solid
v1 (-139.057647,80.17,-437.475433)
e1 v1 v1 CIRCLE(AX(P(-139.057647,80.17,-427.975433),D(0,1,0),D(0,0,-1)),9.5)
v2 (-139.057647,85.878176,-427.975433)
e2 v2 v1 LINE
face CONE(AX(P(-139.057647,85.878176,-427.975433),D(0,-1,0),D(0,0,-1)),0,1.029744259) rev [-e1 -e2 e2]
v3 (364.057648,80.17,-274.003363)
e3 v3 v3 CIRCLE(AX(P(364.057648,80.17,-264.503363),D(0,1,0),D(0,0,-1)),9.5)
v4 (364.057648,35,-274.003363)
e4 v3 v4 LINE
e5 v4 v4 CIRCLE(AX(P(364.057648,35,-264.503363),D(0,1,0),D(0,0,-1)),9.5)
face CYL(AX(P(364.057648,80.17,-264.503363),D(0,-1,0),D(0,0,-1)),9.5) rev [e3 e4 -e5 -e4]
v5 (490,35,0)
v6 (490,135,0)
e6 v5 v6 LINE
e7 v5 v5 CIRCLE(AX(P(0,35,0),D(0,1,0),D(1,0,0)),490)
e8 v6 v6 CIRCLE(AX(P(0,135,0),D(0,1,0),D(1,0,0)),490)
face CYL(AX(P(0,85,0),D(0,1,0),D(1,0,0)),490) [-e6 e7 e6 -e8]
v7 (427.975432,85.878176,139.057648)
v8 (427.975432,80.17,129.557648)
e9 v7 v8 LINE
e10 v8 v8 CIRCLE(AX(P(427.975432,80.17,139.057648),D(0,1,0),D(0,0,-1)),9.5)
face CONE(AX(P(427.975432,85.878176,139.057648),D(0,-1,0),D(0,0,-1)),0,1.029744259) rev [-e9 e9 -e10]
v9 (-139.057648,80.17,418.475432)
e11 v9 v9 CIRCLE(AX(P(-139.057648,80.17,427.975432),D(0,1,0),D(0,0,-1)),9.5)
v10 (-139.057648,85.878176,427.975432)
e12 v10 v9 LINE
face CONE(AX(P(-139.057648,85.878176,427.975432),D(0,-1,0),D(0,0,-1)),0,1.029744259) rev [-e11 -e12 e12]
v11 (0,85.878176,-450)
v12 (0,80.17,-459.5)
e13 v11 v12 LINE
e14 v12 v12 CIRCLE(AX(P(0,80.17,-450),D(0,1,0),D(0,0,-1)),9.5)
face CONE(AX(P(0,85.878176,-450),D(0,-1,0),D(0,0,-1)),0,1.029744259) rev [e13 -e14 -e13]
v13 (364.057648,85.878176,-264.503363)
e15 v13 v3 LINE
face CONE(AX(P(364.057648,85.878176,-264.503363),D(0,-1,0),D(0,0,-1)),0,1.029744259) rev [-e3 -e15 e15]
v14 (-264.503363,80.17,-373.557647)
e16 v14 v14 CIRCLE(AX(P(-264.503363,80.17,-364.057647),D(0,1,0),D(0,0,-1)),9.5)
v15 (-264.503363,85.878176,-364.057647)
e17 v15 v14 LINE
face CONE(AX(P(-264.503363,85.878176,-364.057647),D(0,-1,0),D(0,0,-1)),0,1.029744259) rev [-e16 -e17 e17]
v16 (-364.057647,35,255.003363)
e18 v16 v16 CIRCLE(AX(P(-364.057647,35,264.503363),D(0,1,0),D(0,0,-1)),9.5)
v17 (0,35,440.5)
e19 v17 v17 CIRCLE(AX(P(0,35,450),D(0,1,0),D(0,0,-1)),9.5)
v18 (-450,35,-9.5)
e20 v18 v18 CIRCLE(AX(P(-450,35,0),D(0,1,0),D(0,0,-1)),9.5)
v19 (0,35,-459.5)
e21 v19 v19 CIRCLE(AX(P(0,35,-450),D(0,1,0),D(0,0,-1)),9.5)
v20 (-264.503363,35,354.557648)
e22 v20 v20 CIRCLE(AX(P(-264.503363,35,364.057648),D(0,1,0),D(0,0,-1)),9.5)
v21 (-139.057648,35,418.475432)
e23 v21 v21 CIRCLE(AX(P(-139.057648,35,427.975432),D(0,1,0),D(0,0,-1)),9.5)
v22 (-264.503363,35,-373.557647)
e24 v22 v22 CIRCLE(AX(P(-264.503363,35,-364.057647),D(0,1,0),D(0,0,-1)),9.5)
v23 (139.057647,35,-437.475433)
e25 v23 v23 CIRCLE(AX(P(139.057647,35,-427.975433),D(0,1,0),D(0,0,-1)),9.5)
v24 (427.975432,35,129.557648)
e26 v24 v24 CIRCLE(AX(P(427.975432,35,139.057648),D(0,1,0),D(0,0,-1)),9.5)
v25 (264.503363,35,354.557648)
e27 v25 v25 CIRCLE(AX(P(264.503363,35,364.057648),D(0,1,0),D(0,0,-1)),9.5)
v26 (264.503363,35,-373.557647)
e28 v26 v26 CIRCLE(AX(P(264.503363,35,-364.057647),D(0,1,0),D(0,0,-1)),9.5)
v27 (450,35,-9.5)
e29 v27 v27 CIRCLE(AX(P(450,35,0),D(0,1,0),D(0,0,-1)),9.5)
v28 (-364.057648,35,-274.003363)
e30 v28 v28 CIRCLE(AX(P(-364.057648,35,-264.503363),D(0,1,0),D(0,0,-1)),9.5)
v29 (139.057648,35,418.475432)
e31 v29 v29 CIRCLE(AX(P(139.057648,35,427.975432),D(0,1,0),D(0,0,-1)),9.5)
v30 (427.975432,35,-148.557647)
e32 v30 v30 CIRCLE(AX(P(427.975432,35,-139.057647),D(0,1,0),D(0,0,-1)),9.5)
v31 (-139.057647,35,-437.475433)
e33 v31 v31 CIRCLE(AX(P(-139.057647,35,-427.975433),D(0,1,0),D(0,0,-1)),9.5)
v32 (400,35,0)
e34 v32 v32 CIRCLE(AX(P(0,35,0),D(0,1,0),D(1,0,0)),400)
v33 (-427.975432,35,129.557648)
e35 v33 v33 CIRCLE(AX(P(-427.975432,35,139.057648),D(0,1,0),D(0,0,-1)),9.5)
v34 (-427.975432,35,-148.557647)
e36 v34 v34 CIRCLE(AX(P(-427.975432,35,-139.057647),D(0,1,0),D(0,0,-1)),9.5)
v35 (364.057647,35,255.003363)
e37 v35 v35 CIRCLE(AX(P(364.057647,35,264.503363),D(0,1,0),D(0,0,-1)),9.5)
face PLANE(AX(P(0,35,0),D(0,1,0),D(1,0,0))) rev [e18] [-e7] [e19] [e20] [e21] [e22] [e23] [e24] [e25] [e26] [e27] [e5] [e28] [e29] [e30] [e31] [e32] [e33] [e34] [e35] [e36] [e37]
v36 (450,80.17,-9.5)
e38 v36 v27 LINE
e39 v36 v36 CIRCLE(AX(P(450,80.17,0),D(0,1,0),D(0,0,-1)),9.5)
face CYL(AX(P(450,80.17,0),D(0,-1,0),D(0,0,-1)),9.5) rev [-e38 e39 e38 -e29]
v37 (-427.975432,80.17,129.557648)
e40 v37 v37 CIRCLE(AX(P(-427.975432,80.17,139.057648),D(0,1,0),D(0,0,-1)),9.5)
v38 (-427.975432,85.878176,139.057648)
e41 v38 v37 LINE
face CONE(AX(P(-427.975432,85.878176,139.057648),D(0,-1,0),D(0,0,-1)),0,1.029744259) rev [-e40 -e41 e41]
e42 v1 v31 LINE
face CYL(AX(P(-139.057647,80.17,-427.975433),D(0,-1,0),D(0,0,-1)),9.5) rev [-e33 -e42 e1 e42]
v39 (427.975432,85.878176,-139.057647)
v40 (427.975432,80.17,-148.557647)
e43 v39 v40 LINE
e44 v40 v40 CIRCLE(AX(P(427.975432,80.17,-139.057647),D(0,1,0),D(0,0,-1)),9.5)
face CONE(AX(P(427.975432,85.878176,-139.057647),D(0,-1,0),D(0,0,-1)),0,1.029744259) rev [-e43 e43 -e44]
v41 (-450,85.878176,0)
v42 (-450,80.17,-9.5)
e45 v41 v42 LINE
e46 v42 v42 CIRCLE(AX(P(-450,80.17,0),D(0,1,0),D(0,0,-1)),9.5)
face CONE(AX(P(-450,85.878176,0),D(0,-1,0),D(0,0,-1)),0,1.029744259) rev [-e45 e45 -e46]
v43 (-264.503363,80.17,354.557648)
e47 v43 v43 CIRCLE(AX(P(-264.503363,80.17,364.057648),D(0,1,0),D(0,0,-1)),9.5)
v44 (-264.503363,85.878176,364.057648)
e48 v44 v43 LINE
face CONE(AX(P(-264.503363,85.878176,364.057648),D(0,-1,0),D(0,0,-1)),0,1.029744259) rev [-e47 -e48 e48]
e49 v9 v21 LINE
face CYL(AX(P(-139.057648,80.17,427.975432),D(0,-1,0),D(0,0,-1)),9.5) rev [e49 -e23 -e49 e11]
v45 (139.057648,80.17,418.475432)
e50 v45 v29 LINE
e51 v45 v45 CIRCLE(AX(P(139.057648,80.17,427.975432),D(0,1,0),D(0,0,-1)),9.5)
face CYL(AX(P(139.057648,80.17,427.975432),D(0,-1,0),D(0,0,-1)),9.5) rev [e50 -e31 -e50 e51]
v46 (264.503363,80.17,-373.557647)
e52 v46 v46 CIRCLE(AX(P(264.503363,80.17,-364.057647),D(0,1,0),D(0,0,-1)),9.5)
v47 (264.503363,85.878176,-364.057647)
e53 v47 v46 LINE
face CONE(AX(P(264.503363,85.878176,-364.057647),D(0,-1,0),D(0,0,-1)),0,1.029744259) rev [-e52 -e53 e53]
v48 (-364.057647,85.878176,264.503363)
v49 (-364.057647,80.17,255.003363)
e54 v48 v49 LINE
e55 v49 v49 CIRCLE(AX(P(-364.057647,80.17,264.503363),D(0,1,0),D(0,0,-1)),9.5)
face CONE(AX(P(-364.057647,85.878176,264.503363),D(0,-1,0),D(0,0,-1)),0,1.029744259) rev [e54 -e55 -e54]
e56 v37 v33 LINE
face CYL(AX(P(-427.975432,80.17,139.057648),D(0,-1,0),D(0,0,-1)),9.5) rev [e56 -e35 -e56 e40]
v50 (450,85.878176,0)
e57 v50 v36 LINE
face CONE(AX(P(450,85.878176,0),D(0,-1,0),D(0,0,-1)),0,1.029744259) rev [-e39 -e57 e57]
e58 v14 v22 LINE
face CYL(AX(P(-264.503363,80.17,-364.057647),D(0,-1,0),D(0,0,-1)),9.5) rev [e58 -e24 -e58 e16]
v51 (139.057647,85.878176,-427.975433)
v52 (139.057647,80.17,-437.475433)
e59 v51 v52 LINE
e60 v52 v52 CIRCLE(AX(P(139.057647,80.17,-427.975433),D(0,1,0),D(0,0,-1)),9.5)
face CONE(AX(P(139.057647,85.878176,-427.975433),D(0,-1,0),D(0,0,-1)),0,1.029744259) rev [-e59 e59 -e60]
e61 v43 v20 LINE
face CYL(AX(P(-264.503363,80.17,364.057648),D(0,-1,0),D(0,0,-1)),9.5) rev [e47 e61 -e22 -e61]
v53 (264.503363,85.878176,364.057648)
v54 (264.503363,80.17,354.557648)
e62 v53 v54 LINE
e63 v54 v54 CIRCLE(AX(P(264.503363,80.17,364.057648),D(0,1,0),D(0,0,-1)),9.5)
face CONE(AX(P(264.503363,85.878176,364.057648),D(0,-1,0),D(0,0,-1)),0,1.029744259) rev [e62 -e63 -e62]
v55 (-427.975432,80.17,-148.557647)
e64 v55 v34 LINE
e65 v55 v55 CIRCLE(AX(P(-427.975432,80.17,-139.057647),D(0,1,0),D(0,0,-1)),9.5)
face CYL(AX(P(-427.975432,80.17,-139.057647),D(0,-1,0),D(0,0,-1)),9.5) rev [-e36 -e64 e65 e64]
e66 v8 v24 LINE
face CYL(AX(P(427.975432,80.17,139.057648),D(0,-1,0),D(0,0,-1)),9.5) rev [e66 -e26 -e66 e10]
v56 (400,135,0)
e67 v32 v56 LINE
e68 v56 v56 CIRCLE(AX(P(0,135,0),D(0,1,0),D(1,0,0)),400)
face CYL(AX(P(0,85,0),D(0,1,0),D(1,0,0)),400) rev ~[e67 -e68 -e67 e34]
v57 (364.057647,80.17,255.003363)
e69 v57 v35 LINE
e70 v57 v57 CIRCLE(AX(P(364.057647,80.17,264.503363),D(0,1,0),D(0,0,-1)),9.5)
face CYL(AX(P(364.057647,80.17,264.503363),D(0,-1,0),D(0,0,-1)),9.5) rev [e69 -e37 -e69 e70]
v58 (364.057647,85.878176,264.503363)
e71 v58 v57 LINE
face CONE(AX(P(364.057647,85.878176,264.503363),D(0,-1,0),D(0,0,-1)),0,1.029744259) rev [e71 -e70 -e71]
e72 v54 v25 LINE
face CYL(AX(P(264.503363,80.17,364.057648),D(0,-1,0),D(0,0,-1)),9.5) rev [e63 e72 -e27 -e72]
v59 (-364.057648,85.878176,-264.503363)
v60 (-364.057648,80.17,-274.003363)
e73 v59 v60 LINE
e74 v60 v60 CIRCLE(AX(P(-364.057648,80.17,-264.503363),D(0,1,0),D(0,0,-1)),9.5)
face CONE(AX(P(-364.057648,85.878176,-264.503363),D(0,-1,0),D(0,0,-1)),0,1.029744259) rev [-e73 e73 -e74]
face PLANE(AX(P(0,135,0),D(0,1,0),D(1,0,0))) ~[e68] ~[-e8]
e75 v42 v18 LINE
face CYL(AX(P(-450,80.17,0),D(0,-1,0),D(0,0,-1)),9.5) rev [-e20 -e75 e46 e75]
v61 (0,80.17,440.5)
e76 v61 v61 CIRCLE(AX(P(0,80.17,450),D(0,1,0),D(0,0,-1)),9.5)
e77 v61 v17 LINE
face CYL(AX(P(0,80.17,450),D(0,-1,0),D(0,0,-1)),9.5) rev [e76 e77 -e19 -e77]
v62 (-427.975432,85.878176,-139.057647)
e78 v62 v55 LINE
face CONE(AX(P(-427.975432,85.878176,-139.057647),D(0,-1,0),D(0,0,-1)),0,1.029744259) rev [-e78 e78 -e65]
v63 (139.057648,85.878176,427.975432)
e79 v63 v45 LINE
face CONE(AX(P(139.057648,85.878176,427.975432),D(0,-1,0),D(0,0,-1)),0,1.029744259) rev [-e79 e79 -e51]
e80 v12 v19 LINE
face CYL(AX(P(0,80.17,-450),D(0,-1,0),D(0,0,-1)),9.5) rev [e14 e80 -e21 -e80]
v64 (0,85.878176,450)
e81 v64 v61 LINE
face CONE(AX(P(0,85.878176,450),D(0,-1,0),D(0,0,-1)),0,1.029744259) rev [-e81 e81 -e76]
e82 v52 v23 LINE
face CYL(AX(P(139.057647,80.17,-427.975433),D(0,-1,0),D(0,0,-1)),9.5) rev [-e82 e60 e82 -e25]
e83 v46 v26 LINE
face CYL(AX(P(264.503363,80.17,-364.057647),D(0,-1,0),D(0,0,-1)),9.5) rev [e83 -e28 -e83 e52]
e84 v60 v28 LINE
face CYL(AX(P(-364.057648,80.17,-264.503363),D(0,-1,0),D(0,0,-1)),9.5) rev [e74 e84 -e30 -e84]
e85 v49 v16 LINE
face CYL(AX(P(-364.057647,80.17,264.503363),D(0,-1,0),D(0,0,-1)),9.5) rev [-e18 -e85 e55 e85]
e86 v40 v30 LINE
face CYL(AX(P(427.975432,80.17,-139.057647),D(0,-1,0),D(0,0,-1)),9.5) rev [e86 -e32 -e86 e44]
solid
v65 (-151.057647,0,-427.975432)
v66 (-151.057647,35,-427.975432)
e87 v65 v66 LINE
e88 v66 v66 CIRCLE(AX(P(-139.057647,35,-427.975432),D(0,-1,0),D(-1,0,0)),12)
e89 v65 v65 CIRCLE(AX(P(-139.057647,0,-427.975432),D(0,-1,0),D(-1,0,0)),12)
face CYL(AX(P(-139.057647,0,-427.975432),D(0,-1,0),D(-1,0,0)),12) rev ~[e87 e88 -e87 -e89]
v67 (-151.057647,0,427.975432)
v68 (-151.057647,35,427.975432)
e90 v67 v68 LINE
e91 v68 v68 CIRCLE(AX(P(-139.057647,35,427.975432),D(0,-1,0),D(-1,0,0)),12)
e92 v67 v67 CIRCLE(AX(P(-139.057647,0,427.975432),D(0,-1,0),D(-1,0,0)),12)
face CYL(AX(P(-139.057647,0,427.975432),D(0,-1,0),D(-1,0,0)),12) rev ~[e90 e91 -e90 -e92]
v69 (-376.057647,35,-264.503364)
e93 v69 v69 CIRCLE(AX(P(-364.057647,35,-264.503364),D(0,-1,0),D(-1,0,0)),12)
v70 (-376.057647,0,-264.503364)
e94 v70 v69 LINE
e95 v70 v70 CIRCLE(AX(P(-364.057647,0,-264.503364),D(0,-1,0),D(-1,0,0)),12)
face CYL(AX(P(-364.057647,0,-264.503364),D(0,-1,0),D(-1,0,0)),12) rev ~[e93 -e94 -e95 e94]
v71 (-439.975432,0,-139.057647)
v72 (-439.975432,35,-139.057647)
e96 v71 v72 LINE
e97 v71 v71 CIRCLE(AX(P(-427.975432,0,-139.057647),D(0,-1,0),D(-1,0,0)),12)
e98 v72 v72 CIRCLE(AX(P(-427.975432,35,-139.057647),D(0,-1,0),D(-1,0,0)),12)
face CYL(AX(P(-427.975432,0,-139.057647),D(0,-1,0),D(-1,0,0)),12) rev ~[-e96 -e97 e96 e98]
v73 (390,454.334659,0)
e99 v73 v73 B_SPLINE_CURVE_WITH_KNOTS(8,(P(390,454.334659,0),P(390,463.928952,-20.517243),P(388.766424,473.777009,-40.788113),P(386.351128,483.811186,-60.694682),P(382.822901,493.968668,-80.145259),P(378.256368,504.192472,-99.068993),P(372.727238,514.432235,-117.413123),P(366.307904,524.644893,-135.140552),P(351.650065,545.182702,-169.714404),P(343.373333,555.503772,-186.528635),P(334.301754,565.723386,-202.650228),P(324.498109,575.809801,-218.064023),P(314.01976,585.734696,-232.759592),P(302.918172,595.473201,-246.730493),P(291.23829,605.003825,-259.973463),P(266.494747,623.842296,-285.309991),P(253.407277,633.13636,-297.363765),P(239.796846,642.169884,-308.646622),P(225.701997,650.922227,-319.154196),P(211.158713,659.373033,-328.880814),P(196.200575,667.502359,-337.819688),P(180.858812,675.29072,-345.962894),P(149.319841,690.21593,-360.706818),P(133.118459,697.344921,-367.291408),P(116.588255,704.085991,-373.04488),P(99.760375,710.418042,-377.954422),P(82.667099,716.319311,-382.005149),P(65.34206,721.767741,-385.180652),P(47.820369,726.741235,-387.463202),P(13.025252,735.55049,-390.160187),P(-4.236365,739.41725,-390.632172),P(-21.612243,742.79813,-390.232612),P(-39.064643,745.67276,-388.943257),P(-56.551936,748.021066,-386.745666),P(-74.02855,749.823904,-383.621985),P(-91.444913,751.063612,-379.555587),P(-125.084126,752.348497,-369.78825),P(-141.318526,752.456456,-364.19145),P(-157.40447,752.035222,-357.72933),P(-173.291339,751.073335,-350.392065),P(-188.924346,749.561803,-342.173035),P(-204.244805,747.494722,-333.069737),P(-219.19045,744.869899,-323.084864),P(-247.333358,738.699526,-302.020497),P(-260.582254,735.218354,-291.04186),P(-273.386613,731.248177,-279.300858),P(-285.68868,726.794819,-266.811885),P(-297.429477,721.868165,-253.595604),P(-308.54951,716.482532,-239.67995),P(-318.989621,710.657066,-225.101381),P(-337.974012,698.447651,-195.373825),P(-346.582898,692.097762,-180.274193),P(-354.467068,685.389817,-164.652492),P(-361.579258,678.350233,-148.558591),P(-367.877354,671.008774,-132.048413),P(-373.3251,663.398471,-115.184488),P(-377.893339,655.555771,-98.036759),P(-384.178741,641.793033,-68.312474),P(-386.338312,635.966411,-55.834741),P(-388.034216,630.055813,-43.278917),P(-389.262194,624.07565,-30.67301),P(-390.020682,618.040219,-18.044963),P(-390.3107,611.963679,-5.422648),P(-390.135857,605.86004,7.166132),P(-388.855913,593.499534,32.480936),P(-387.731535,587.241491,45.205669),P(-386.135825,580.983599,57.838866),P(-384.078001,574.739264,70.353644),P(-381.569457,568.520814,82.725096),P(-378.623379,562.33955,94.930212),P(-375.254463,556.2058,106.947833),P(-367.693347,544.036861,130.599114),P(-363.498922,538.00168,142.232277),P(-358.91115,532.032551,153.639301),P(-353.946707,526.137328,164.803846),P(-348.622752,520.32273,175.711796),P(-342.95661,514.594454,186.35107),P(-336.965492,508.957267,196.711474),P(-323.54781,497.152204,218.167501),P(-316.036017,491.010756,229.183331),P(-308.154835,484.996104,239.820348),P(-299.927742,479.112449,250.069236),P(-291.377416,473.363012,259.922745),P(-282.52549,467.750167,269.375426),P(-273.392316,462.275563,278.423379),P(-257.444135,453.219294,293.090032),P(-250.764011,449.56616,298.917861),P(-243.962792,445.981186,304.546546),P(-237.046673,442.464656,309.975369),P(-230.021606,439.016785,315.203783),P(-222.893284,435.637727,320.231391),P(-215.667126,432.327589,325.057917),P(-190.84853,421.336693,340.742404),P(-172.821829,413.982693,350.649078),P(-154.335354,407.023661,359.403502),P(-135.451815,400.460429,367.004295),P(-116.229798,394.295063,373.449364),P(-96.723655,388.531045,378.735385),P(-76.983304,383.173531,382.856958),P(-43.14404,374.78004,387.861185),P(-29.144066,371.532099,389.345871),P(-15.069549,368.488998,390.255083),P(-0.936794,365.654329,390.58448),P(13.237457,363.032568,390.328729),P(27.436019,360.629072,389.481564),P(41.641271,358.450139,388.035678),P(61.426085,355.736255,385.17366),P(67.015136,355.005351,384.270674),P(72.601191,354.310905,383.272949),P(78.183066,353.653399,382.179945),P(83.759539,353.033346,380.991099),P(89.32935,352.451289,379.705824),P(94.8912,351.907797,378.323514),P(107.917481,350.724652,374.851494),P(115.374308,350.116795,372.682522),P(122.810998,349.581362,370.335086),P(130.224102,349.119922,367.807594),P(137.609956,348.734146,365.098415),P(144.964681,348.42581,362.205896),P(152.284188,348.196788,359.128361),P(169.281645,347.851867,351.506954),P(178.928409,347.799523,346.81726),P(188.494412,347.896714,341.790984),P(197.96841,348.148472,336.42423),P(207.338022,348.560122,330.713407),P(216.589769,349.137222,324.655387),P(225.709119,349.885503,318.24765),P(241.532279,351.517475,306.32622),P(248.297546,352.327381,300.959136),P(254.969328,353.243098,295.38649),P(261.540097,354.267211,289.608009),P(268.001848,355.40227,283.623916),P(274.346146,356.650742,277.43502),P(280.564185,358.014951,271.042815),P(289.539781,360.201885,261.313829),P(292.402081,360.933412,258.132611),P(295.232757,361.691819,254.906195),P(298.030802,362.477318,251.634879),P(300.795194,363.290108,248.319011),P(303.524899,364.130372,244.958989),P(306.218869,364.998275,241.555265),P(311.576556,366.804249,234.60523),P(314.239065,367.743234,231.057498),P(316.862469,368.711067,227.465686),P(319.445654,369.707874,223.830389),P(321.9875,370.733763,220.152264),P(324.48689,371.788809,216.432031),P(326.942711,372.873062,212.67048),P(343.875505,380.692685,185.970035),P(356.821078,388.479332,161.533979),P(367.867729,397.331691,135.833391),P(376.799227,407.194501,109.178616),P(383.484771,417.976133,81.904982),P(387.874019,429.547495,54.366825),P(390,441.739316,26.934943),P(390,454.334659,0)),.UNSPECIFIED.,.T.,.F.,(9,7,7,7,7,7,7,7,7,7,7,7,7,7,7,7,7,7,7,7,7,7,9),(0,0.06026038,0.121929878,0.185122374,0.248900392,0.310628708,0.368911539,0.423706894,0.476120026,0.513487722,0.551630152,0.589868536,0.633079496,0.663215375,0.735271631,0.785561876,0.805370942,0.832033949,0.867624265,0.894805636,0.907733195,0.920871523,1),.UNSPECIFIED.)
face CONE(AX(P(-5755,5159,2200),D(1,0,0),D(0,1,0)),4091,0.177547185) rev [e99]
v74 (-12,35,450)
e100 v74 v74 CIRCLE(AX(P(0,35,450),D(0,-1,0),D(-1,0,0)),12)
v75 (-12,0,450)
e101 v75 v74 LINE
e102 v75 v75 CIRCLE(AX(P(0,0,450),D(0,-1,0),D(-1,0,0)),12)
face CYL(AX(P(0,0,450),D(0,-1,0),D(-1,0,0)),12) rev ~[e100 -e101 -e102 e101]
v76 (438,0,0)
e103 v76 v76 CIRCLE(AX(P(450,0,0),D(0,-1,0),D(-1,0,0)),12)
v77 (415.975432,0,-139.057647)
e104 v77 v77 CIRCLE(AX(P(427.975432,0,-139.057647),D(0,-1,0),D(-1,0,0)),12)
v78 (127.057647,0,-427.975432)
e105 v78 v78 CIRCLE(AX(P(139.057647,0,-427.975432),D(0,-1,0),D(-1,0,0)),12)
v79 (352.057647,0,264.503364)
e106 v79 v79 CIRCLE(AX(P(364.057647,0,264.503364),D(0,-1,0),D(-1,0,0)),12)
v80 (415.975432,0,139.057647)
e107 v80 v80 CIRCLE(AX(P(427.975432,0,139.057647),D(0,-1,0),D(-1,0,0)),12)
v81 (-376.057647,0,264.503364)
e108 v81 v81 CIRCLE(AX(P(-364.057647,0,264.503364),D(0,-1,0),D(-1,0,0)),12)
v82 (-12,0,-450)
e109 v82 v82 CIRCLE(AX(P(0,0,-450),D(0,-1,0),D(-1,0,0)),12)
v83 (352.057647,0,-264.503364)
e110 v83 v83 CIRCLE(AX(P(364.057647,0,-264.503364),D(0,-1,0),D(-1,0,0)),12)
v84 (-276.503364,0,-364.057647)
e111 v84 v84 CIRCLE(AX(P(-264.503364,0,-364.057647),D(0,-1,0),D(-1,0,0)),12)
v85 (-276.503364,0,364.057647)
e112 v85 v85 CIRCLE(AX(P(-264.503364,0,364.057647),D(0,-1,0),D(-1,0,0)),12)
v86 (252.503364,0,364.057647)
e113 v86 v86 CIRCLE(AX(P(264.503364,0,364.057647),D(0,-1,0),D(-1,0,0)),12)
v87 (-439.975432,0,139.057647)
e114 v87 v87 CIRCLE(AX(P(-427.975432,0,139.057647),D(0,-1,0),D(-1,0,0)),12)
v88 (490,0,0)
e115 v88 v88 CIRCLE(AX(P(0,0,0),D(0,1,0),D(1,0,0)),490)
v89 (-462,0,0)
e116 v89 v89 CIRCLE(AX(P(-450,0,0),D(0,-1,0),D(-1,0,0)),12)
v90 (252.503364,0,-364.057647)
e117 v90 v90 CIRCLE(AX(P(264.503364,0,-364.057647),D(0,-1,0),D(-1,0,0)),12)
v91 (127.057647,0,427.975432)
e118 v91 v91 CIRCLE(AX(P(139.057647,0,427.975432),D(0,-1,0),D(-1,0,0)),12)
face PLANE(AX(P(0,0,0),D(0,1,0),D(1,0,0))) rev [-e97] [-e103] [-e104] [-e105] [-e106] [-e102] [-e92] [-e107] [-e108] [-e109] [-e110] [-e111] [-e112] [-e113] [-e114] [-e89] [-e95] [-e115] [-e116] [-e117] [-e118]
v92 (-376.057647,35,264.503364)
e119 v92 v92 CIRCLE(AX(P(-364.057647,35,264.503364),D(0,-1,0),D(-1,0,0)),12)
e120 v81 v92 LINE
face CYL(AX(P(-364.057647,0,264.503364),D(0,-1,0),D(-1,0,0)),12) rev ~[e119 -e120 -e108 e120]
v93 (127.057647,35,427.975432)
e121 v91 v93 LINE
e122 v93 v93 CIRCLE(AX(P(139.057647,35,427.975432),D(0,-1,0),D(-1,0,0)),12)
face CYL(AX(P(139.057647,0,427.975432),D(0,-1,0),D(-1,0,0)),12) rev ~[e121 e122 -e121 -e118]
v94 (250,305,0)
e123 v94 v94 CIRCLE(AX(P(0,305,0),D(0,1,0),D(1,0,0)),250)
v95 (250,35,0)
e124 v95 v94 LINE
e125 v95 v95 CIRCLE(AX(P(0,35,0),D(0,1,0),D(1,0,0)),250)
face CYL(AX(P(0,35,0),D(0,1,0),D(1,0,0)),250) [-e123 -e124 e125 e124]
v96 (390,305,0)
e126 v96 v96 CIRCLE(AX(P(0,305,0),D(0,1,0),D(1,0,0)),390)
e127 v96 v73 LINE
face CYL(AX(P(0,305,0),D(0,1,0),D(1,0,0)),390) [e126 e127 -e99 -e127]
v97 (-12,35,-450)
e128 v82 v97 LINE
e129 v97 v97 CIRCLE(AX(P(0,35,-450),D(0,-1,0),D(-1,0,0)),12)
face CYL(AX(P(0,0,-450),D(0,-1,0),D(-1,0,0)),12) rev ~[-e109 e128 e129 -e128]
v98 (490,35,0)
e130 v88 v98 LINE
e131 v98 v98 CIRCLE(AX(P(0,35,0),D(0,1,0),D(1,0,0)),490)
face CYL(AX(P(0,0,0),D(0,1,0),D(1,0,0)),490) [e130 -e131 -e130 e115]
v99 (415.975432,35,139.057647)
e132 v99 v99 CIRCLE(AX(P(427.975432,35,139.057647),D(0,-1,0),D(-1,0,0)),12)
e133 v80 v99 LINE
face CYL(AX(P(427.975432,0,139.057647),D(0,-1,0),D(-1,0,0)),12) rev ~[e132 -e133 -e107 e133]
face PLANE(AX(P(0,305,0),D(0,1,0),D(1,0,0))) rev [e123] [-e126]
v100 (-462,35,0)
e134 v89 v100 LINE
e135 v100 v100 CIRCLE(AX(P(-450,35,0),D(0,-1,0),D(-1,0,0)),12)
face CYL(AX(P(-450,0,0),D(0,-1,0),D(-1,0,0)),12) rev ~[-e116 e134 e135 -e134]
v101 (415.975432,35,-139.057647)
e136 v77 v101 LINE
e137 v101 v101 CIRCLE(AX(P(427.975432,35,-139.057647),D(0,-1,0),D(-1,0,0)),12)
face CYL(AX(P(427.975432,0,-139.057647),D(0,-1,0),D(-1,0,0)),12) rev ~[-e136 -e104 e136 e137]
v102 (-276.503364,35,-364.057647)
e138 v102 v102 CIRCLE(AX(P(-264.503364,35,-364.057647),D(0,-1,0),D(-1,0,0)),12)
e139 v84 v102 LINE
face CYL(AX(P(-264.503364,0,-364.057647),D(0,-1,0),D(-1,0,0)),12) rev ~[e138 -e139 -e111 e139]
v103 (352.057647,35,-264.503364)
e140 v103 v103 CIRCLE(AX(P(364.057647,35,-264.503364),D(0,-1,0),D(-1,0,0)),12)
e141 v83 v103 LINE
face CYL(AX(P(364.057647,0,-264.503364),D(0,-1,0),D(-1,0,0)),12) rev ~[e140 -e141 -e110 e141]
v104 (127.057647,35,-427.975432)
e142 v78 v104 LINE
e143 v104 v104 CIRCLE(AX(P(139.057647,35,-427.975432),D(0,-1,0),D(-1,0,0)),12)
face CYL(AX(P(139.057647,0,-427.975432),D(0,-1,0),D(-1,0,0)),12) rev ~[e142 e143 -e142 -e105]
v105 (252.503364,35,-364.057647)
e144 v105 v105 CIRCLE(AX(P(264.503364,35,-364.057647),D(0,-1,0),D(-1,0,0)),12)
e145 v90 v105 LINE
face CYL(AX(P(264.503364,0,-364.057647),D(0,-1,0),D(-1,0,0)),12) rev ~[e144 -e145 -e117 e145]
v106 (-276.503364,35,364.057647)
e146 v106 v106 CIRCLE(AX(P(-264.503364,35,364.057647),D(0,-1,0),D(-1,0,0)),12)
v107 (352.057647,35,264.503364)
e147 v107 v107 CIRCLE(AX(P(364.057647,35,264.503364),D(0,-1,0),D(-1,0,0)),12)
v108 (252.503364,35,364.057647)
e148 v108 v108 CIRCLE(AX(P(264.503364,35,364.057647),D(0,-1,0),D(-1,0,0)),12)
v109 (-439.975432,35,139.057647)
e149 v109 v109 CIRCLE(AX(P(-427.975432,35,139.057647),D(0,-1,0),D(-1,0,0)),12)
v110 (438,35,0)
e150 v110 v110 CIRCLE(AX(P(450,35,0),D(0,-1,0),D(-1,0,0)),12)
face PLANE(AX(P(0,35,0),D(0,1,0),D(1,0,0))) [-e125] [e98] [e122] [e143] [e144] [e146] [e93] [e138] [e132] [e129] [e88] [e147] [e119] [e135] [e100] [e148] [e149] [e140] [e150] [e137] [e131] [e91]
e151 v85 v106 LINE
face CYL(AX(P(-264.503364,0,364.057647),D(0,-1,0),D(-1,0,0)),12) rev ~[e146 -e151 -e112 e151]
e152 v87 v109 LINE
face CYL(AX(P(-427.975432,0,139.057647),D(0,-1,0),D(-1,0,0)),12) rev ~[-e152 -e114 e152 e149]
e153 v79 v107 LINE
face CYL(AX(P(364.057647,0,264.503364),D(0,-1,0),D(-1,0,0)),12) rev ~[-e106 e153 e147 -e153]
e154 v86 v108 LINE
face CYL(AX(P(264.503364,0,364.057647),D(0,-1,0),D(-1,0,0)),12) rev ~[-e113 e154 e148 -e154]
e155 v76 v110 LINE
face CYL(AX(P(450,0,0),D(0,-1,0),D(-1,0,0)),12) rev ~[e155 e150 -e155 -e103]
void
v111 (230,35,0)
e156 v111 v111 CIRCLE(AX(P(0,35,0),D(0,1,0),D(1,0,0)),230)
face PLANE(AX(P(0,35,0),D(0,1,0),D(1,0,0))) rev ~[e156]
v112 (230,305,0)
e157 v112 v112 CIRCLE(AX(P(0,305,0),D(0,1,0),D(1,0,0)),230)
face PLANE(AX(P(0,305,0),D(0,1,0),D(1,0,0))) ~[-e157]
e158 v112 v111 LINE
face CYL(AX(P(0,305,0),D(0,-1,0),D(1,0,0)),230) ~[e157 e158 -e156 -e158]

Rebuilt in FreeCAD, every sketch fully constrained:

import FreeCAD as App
import Part
import Sketcher
Q = App.Units.Quantity


def add_polygon(sketch, points):
    """Adds a closed chain of lines whose ends are joined by coincident constraints."""
    first, n = sketch.GeometryCount, len(points)
    for a, b in zip(points, points[1:] + points[:1]):
        sketch.addGeometry(Part.LineSegment(App.Vector(*a, 0), App.Vector(*b, 0)), False)
    for i in range(n):
        sketch.addConstraint(Sketcher.Constraint("Coincident", first + i, 2, first + (i + 1) % n, 1))

doc = App.newDocument("Part")
body = doc.addObject("PartDesign::Body", "Body")

sketch1 = body.newObject("Sketcher::SketchObject", "Sketch")
sketch1.AttachmentSupport = (doc.getObject("XY_Plane"), [""])
sketch1.MapMode = "FlatFace"
add_polygon(sketch1, [(0, 0), (490, 0), (490, 35), (250, 35), (250, 305), (390, 305), (390, 775), (0, 775), (0, 305), (230, 305), (230, 35), (0, 35)])
sketch1.addConstraint([
    Sketcher.Constraint("Horizontal", 0),
    Sketcher.Constraint("Vertical", 1),
    Sketcher.Constraint("Horizontal", 2),
    Sketcher.Constraint("Vertical", 3),
    Sketcher.Constraint("Horizontal", 4),
    Sketcher.Constraint("Vertical", 5),
    Sketcher.Constraint("Horizontal", 6),
    Sketcher.Constraint("Vertical", 7),
    Sketcher.Constraint("Horizontal", 8),
    Sketcher.Constraint("Vertical", 9),
    Sketcher.Constraint("Horizontal", 10),
    Sketcher.Constraint("Vertical", 11),
    Sketcher.Constraint("Coincident", 11, 2, -1, 1),
    Sketcher.Constraint("PointOnObject", 6, 2, -2),
    Sketcher.Constraint("Horizontal", 4, 2, 7, 2),
    Sketcher.Constraint("Horizontal", 2, 2, 9, 2),
    Sketcher.Constraint("DistanceX", 0, 1, 0, 2, 490.0),
    Sketcher.Constraint("DistanceX", 2, 2, 2, 1, 240.0),
    Sketcher.Constraint("DistanceX", 4, 1, 4, 2, 140.0),
    Sketcher.Constraint("DistanceX", 8, 1, 8, 2, 230.0),
    Sketcher.Constraint("DistanceY", 1, 1, 1, 2, 35.0),
    Sketcher.Constraint("DistanceY", 3, 1, 3, 2, 270.0),
    Sketcher.Constraint("DistanceY", 5, 1, 5, 2, 470.0),
])
revolution = body.newObject("PartDesign::Revolution", "Revolution")
revolution.Profile = sketch1
revolution.ReferenceAxis = (sketch1, ["V_Axis"])
revolution.Angle = 360

sketch2 = body.newObject("Sketcher::SketchObject", "Sketch001")
sketch2.AttachmentSupport = (doc.getObject("XZ_Plane"), [""])
sketch2.MapMode = "FlatFace"
sketch2.addGeometry([
    Part.Circle(App.Vector(0, 450, 0), App.Vector(0, 0, 1), 12),
    Part.Circle(App.Vector(139, 428, 0), App.Vector(0, 0, 1), 12),
    Part.Circle(App.Vector(265, 364, 0), App.Vector(0, 0, 1), 12),
    Part.Circle(App.Vector(364, 265, 0), App.Vector(0, 0, 1), 12),
    Part.Circle(App.Vector(428, 139, 0), App.Vector(0, 0, 1), 12),
    Part.Circle(App.Vector(450, 0, 0), App.Vector(0, 0, 1), 12),
    Part.Circle(App.Vector(428, -139, 0), App.Vector(0, 0, 1), 12),
    Part.Circle(App.Vector(364, -265, 0), App.Vector(0, 0, 1), 12),
    Part.Circle(App.Vector(265, -364, 0), App.Vector(0, 0, 1), 12),
    Part.Circle(App.Vector(139, -428, 0), App.Vector(0, 0, 1), 12),
    Part.Circle(App.Vector(0, -450, 0), App.Vector(0, 0, 1), 12),
    Part.Circle(App.Vector(-139, -428, 0), App.Vector(0, 0, 1), 12),
    Part.Circle(App.Vector(-265, -364, 0), App.Vector(0, 0, 1), 12),
    Part.Circle(App.Vector(-364, -265, 0), App.Vector(0, 0, 1), 12),
    Part.Circle(App.Vector(-428, -139, 0), App.Vector(0, 0, 1), 12),
    Part.Circle(App.Vector(-450, 0, 0), App.Vector(0, 0, 1), 12),
    Part.Circle(App.Vector(-428, 139, 0), App.Vector(0, 0, 1), 12),
    Part.Circle(App.Vector(-364, 265, 0), App.Vector(0, 0, 1), 12),
    Part.Circle(App.Vector(-265, 364, 0), App.Vector(0, 0, 1), 12),
    Part.Circle(App.Vector(-139, 428, 0), App.Vector(0, 0, 1), 12),
], False)
sketch2.addConstraint([
    Sketcher.Constraint("Equal", 0, 1),
    Sketcher.Constraint("Equal", 1, 2),
    Sketcher.Constraint("Equal", 2, 3),
    Sketcher.Constraint("Equal", 3, 4),
    Sketcher.Constraint("Equal", 4, 5),
    Sketcher.Constraint("Equal", 5, 6),
    Sketcher.Constraint("Equal", 6, 7),
    Sketcher.Constraint("Equal", 7, 8),
    Sketcher.Constraint("Equal", 8, 9),
    Sketcher.Constraint("Equal", 9, 10),
    Sketcher.Constraint("Equal", 10, 11),
    Sketcher.Constraint("Equal", 11, 12),
    Sketcher.Constraint("Equal", 12, 13),
    Sketcher.Constraint("Equal", 13, 14),
    Sketcher.Constraint("Equal", 14, 15),
    Sketcher.Constraint("Equal", 15, 16),
    Sketcher.Constraint("Equal", 16, 17),
    Sketcher.Constraint("Equal", 17, 18),
    Sketcher.Constraint("Equal", 18, 19),
    Sketcher.Constraint("Symmetric", 0, 3, 10, 3, -1, 1),
    Sketcher.Constraint("Symmetric", 1, 3, 11, 3, -1, 1),
    Sketcher.Constraint("Symmetric", 2, 3, 12, 3, -1, 1),
    Sketcher.Constraint("Symmetric", 3, 3, 13, 3, -1, 1),
    Sketcher.Constraint("Symmetric", 4, 3, 14, 3, -1, 1),
    Sketcher.Constraint("Symmetric", 5, 3, 15, 3, -1, 1),
    Sketcher.Constraint("Symmetric", 6, 3, 16, 3, -1, 1),
    Sketcher.Constraint("Symmetric", 7, 3, 17, 3, -1, 1),
    Sketcher.Constraint("Symmetric", 8, 3, 18, 3, -1, 1),
    Sketcher.Constraint("Symmetric", 9, 3, 19, 3, -1, 1),
    Sketcher.Constraint("Symmetric", 9, 3, 11, 3, -2),
    Sketcher.Constraint("Symmetric", 8, 3, 12, 3, -2),
    Sketcher.Constraint("Symmetric", 7, 3, 13, 3, -2),
    Sketcher.Constraint("Symmetric", 6, 3, 14, 3, -2),
    Sketcher.Constraint("PointOnObject", 0, 3, -2),
    Sketcher.Constraint("PointOnObject", 5, 3, -1),
    Sketcher.Constraint("Diameter", 0, 24.0),
    Sketcher.Constraint("DistanceY", -1, 1, 0, 3, 450.0),
    Sketcher.Constraint("DistanceX", -1, 1, 5, 3, 450.0),
    Sketcher.Constraint("DistanceX", 1, 3, 3, 3, 225.0),
    Sketcher.Constraint("DistanceY", 4, 3, 2, 3, 225.0),
    Sketcher.Constraint("DistanceY", 3, 3, 1, 3, 163.472069),
    Sketcher.Constraint("DistanceX", 2, 3, 4, 3, 163.472069),
    Sketcher.Constraint("DistanceY", 6, 3, 3, 3, 403.561011),
    Sketcher.Constraint("DistanceX", 11, 3, 8, 3, 403.561011),
    Sketcher.Constraint("DistanceX", -1, 1, 1, 3, 139.057647),
    Sketcher.Constraint("DistanceY", -1, 1, 1, 3, 427.975432),
])
pocket1 = body.newObject("PartDesign::Pocket", "Pocket")
pocket1.Profile = sketch2
pocket1.Type = "ThroughAll"

sketch3 = body.newObject("Sketcher::SketchObject", "Sketch002")
sketch3.AttachmentSupport = (doc.getObject("XY_Plane"), [""])
sketch3.MapMode = "FlatFace"
sketch3.AttachmentOffset = App.Placement(App.Vector(0, 0, 2200), App.Rotation())
add_polygon(sketch3, [(1345, 10524), (-5755, 9250), (-5755, 5159), (1345, 5159)])
sketch3.addGeometry(Part.LineSegment(App.Vector(1345, 5159, 0), App.Vector(-5755, 5159, 0)), True)
sketch3.addConstraint([
    Sketcher.Constraint("Vertical", 1),
    Sketcher.Constraint("Horizontal", 2),
    Sketcher.Constraint("Vertical", 3),
    Sketcher.Constraint("Horizontal", 4),
    Sketcher.Constraint("Coincident", 4, 1, 2, 2),
    Sketcher.Constraint("Vertical", 0, 2, 4, 2),
    Sketcher.Constraint("DistanceX", 2, 1, 2, 2, 7100.0),
    Sketcher.Constraint("DistanceY", 1, 2, 1, 1, 4091.0),
    Sketcher.Constraint("DistanceY", 3, 1, 3, 2, 5365.0),
    Sketcher.Constraint("DistanceX", 0, 2, -1, 1, 5755.0),
    Sketcher.Constraint("DistanceY", -1, 1, 0, 2, 9250.0),
])
groove = body.newObject("PartDesign::Groove", "Groove")
groove.Profile = sketch3
groove.ReferenceAxis = (sketch3, ["Axis0"])
groove.Angle = 360
body2 = doc.addObject("PartDesign::Body", "Body001")

sketch4 = body2.newObject("Sketcher::SketchObject", "Sketch003")
sketch4.AttachmentSupport = (doc.getObject("XY_Plane001"), [""])
sketch4.MapMode = "FlatFace"
add_polygon(sketch4, [(400, 135), (400, 35), (490, 35), (490, 135)])
sketch4.addConstraint([
    Sketcher.Constraint("Vertical", 0),
    Sketcher.Constraint("Horizontal", 1),
    Sketcher.Constraint("Vertical", 2),
    Sketcher.Constraint("Horizontal", 3),
    Sketcher.Constraint("DistanceX", 1, 1, 1, 2, 90.0),
    Sketcher.Constraint("DistanceY", 0, 2, 0, 1, 100.0),
    Sketcher.Constraint("DistanceX", -1, 1, 0, 2, 400.0),
    Sketcher.Constraint("DistanceY", -1, 1, 0, 2, 35.0),
])
revolution2 = body2.newObject("PartDesign::Revolution", "Revolution001")
revolution2.Profile = sketch4
revolution2.ReferenceAxis = (sketch4, ["V_Axis"])
revolution2.Angle = 360

sketch5 = body2.newObject("Sketcher::SketchObject", "Sketch004")
sketch5.AttachmentSupport = (doc.getObject("YZ_Plane001"), [""])
sketch5.MapMode = "FlatFace"
add_polygon(sketch5, [(86, 450), (35, 450), (35, 440), (80, 440)])
sketch5.addGeometry(Part.LineSegment(App.Vector(35, 450, 0), App.Vector(86, 450, 0)), True)
sketch5.addConstraint([
    Sketcher.Constraint("Horizontal", 0),
    Sketcher.Constraint("Vertical", 1),
    Sketcher.Constraint("Horizontal", 2),
    Sketcher.Constraint("Horizontal", 4),
    Sketcher.Constraint("Coincident", 4, 1, 0, 2),
    Sketcher.Constraint("Equal", 0, 4),
    Sketcher.Constraint("Angle", 3, Q("59 deg")),
    Sketcher.Constraint("DistanceY", 1, 2, 1, 1, 9.5),
    Sketcher.Constraint("DistanceX", -1, 1, 0, 2, 35.0),
    Sketcher.Constraint("DistanceY", -1, 1, 0, 2, 450.0),
    Sketcher.Constraint("DistanceX", 2, 1, 2, 2, 45.17),
])
groove2 = body2.newObject("PartDesign::Groove", "Groove001")
groove2.Profile = sketch5
groove2.ReferenceAxis = (sketch5, ["Axis0"])
groove2.Angle = 360
doc.recompute()

datumline = body2.newObject("PartDesign::Line", "DatumLine")
datumline.Placement = App.Placement(App.Vector(0, 0, 0), App.Rotation(App.Vector(0, 0, 1), App.Vector(0.987688341, 0, -0.156434465)))
linearpattern = body2.newObject("PartDesign::LinearPattern", "LinearPattern")
linearpattern.Originals = [groove2]
linearpattern.Direction = (datumline, [""])
linearpattern.Mode = "offset"
linearpattern.Offset = 140.791019
linearpattern.Occurrences = 2
body2.Tip = linearpattern
doc.recompute()

datumline2 = body2.newObject("PartDesign::Line", "DatumLine001")
datumline2.Placement = App.Placement(App.Vector(0, 0, 0), App.Rotation(App.Vector(0, 0, 1), App.Vector(0.951056516, 0, -0.309016994)))
linearpattern2 = body2.newObject("PartDesign::LinearPattern", "LinearPattern001")
linearpattern2.Originals = [groove2]
linearpattern2.Direction = (datumline2, [""])
linearpattern2.Mode = "offset"
linearpattern2.Offset = 278.115295
linearpattern2.Occurrences = 2
body2.Tip = linearpattern2
doc.recompute()

datumline3 = body2.newObject("PartDesign::Line", "DatumLine002")
datumline3.Placement = App.Placement(App.Vector(0, 0, 0), App.Rotation(App.Vector(0, 0, 1), App.Vector(0.891006524, 0, -0.4539905)))
linearpattern3 = body2.newObject("PartDesign::LinearPattern", "LinearPattern002")
linearpattern3.Originals = [groove2]
linearpattern3.Direction = (datumline3, [""])
linearpattern3.Mode = "offset"
linearpattern3.Offset = 408.59145
linearpattern3.Occurrences = 2
body2.Tip = linearpattern3
doc.recompute()

datumline4 = body2.newObject("PartDesign::Line", "DatumLine003")
datumline4.Placement = App.Placement(App.Vector(0, 0, 0), App.Rotation(App.Vector(0, 0, 1), App.Vector(0.809016994, 0, -0.587785252)))
linearpattern4 = body2.newObject("PartDesign::LinearPattern", "LinearPattern003")
linearpattern4.Originals = [groove2]
linearpattern4.Direction = (datumline4, [""])
linearpattern4.Mode = "offset"
linearpattern4.Offset = 529.006727
linearpattern4.Occurrences = 2
body2.Tip = linearpattern4
doc.recompute()

datumline5 = body2.newObject("PartDesign::Line", "DatumLine004")
datumline5.Placement = App.Placement(App.Vector(0, 0, 0), App.Rotation(App.Vector(0, 0, 1), App.Vector(0.707106781, 0, -0.707106781)))
linearpattern5 = body2.newObject("PartDesign::LinearPattern", "LinearPattern004")
linearpattern5.Originals = [groove2]
linearpattern5.Direction = (datumline5, [""])
linearpattern5.Mode = "offset"
linearpattern5.Offset = 636.396103
linearpattern5.Occurrences = 2
body2.Tip = linearpattern5
doc.recompute()

datumline6 = body2.newObject("PartDesign::Line", "DatumLine005")
datumline6.Placement = App.Placement(App.Vector(0, 0, 0), App.Rotation(App.Vector(0, 0, 1), App.Vector(0.587785252, 0, -0.809016994)))
linearpattern6 = body2.newObject("PartDesign::LinearPattern", "LinearPattern005")
linearpattern6.Originals = [groove2]
linearpattern6.Direction = (datumline6, [""])
linearpattern6.Mode = "offset"
linearpattern6.Offset = 728.115295
linearpattern6.Occurrences = 2
body2.Tip = linearpattern6
doc.recompute()

datumline7 = body2.newObject("PartDesign::Line", "DatumLine006")
datumline7.Placement = App.Placement(App.Vector(0, 0, 0), App.Rotation(App.Vector(0, 0, 1), App.Vector(0.4539905, 0, -0.891006524)))
linearpattern7 = body2.newObject("PartDesign::LinearPattern", "LinearPattern006")
linearpattern7.Originals = [groove2]
linearpattern7.Direction = (datumline7, [""])
linearpattern7.Mode = "offset"
linearpattern7.Offset = 801.905872
linearpattern7.Occurrences = 2
body2.Tip = linearpattern7
doc.recompute()

datumline8 = body2.newObject("PartDesign::Line", "DatumLine007")
datumline8.Placement = App.Placement(App.Vector(0, 0, 0), App.Rotation(App.Vector(0, 0, 1), App.Vector(0.309016994, 0, -0.951056516)))
linearpattern8 = body2.newObject("PartDesign::LinearPattern", "LinearPattern007")
linearpattern8.Originals = [groove2]
linearpattern8.Direction = (datumline8, [""])
linearpattern8.Mode = "offset"
linearpattern8.Offset = 855.950864
linearpattern8.Occurrences = 2
body2.Tip = linearpattern8
doc.recompute()

datumline9 = body2.newObject("PartDesign::Line", "DatumLine008")
datumline9.Placement = App.Placement(App.Vector(0, 0, 0), App.Rotation(App.Vector(0, 0, 1), App.Vector(0.156434465, 0, -0.987688341)))
linearpattern9 = body2.newObject("PartDesign::LinearPattern", "LinearPattern008")
linearpattern9.Originals = [groove2]
linearpattern9.Direction = (datumline9, [""])
linearpattern9.Mode = "offset"
linearpattern9.Offset = 888.919507
linearpattern9.Occurrences = 2
body2.Tip = linearpattern9
doc.recompute()

linearpattern10 = body2.newObject("PartDesign::LinearPattern", "LinearPattern009")
linearpattern10.Originals = [groove2]
linearpattern10.Direction = (doc.getObject("Z_Axis001"), [""])
linearpattern10.Mode = "offset"
linearpattern10.Offset = 900
linearpattern10.Occurrences = 2
linearpattern10.Reversed = True
body2.Tip = linearpattern10
doc.recompute()

datumline10 = body2.newObject("PartDesign::Line", "DatumLine009")
datumline10.Placement = App.Placement(App.Vector(0, 0, 0), App.Rotation(App.Vector(0, 0, 1), App.Vector(-0.156434465, 0, -0.987688341)))
linearpattern11 = body2.newObject("PartDesign::LinearPattern", "LinearPattern010")
linearpattern11.Originals = [groove2]
linearpattern11.Direction = (datumline10, [""])
linearpattern11.Mode = "offset"
linearpattern11.Offset = 888.919507
linearpattern11.Occurrences = 2
body2.Tip = linearpattern11
doc.recompute()

datumline11 = body2.newObject("PartDesign::Line", "DatumLine010")
datumline11.Placement = App.Placement(App.Vector(0, 0, 0), App.Rotation(App.Vector(0, 0, 1), App.Vector(-0.309016994, 0, -0.951056516)))
linearpattern12 = body2.newObject("PartDesign::LinearPattern", "LinearPattern011")
linearpattern12.Originals = [groove2]
linearpattern12.Direction = (datumline11, [""])
linearpattern12.Mode = "offset"
linearpattern12.Offset = 855.950864
linearpattern12.Occurrences = 2
body2.Tip = linearpattern12
doc.recompute()

datumline12 = body2.newObject("PartDesign::Line", "DatumLine011")
datumline12.Placement = App.Placement(App.Vector(0, 0, 0), App.Rotation(App.Vector(0, 0, 1), App.Vector(-0.4539905, 0, -0.891006524)))
linearpattern13 = body2.newObject("PartDesign::LinearPattern", "LinearPattern012")
linearpattern13.Originals = [groove2]
linearpattern13.Direction = (datumline12, [""])
linearpattern13.Mode = "offset"
linearpattern13.Offset = 801.905872
linearpattern13.Occurrences = 2
body2.Tip = linearpattern13
doc.recompute()

datumline13 = body2.newObject("PartDesign::Line", "DatumLine012")
datumline13.Placement = App.Placement(App.Vector(0, 0, 0), App.Rotation(App.Vector(0, 0, 1), App.Vector(-0.587785252, 0, -0.809016994)))
linearpattern14 = body2.newObject("PartDesign::LinearPattern", "LinearPattern013")
linearpattern14.Originals = [groove2]
linearpattern14.Direction = (datumline13, [""])
linearpattern14.Mode = "offset"
linearpattern14.Offset = 728.115295
linearpattern14.Occurrences = 2
body2.Tip = linearpattern14
doc.recompute()

datumline14 = body2.newObject("PartDesign::Line", "DatumLine013")
datumline14.Placement = App.Placement(App.Vector(0, 0, 0), App.Rotation(App.Vector(0, 0, 1), App.Vector(-0.707106781, 0, -0.707106781)))
linearpattern15 = body2.newObject("PartDesign::LinearPattern", "LinearPattern014")
linearpattern15.Originals = [groove2]
linearpattern15.Direction = (datumline14, [""])
linearpattern15.Mode = "offset"
linearpattern15.Offset = 636.396103
linearpattern15.Occurrences = 2
body2.Tip = linearpattern15
doc.recompute()

datumline15 = body2.newObject("PartDesign::Line", "DatumLine014")
datumline15.Placement = App.Placement(App.Vector(0, 0, 0), App.Rotation(App.Vector(0, 0, 1), App.Vector(-0.809016994, 0, -0.587785252)))
linearpattern16 = body2.newObject("PartDesign::LinearPattern", "LinearPattern015")
linearpattern16.Originals = [groove2]
linearpattern16.Direction = (datumline15, [""])
linearpattern16.Mode = "offset"
linearpattern16.Offset = 529.006727
linearpattern16.Occurrences = 2
body2.Tip = linearpattern16
doc.recompute()

datumline16 = body2.newObject("PartDesign::Line", "DatumLine015")
datumline16.Placement = App.Placement(App.Vector(0, 0, 0), App.Rotation(App.Vector(0, 0, 1), App.Vector(-0.891006524, 0, -0.4539905)))
linearpattern17 = body2.newObject("PartDesign::LinearPattern", "LinearPattern016")
linearpattern17.Originals = [groove2]
linearpattern17.Direction = (datumline16, [""])
linearpattern17.Mode = "offset"
linearpattern17.Offset = 408.59145
linearpattern17.Occurrences = 2
body2.Tip = linearpattern17
doc.recompute()

datumline17 = body2.newObject("PartDesign::Line", "DatumLine016")
datumline17.Placement = App.Placement(App.Vector(0, 0, 0), App.Rotation(App.Vector(0, 0, 1), App.Vector(-0.951056516, 0, -0.309016994)))
linearpattern18 = body2.newObject("PartDesign::LinearPattern", "LinearPattern017")
linearpattern18.Originals = [groove2]
linearpattern18.Direction = (datumline17, [""])
linearpattern18.Mode = "offset"
linearpattern18.Offset = 278.115295
linearpattern18.Occurrences = 2
body2.Tip = linearpattern18
doc.recompute()

datumline18 = body2.newObject("PartDesign::Line", "DatumLine017")
datumline18.Placement = App.Placement(App.Vector(0, 0, 0), App.Rotation(App.Vector(0, 0, 1), App.Vector(-0.987688341, 0, -0.156434465)))
linearpattern19 = body2.newObject("PartDesign::LinearPattern", "LinearPattern018")
linearpattern19.Originals = [groove2]
linearpattern19.Direction = (datumline18, [""])
linearpattern19.Mode = "offset"
linearpattern19.Offset = 140.791019
linearpattern19.Occurrences = 2
body2.Tip = linearpattern19

doc.recompute()
